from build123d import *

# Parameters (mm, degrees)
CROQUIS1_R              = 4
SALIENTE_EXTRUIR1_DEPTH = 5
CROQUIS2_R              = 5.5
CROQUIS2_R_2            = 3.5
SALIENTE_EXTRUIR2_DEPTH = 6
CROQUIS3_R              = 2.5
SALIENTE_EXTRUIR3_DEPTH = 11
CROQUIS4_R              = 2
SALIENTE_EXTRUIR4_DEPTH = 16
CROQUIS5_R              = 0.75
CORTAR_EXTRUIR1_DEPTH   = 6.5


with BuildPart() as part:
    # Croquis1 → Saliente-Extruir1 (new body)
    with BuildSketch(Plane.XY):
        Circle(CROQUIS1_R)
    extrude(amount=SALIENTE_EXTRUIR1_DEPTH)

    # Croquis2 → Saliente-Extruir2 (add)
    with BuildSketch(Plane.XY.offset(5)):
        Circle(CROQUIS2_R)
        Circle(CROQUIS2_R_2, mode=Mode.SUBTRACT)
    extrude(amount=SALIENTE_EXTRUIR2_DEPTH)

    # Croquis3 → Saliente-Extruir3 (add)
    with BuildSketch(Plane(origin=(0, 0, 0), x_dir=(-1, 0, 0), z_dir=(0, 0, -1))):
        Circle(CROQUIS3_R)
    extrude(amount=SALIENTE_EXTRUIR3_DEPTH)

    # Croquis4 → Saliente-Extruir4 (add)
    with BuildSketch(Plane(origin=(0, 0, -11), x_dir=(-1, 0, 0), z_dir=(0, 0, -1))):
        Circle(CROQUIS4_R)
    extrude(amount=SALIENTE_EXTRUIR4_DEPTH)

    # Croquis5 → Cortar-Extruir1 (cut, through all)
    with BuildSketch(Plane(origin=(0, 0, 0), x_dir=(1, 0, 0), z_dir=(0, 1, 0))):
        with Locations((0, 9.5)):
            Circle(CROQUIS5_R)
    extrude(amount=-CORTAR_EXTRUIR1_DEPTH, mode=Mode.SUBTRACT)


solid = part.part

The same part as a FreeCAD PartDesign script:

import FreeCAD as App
import Part
import Sketcher
from FreeCAD import Vector

doc = App.newDocument("Part")
body = doc.addObject("PartDesign::Body", "Body")

# Sketch on XY plane
sketch1 = body.newObject("Sketcher::SketchObject", "Sketch")
sketch1.AttachmentSupport = (doc.getObject("XY_Plane"), [""])
sketch1.MapMode = "FlatFace"
sketch1.addGeometry(Part.Circle(Vector(0, 0, 0), Vector(0, 0, 1), 4), False)
sketch1.addConstraint(Sketcher.Constraint("Coincident", 0, 3, -1, 1))
sketch1.addConstraint(Sketcher.Constraint("Diameter", 0, 8.0))
pad1 = body.newObject("PartDesign::Pad", "Pad")
pad1.Profile = sketch1
pad1.Length = 5

# Sketch on XY plane
sketch2 = body.newObject("Sketcher::SketchObject", "Sketch001")
sketch2.AttachmentSupport = (doc.getObject("XY_Plane"), [""])
sketch2.MapMode = "FlatFace"
sketch2.AttachmentOffset = App.Placement(Vector(0, 0, 5), App.Rotation())
sketch2.addGeometry(Part.Circle(Vector(0, 0, 0), Vector(0, 0, 1), 5.5), False)
sketch2.addGeometry(Part.Circle(Vector(0, 0, 0), Vector(0, 0, 1), 3.5), False)
sketch2.addConstraint(Sketcher.Constraint("Coincident", 0, 3, -1, 1))
sketch2.addConstraint(Sketcher.Constraint("Coincident", 1, 3, -1, 1))
sketch2.addConstraint(Sketcher.Constraint("Diameter", 0, 11.0))
sketch2.addConstraint(Sketcher.Constraint("Diameter", 1, 7.0))
pad2 = body.newObject("PartDesign::Pad", "Pad001")
pad2.Profile = sketch2
pad2.Length = 6

# Sketch on XY plane
sketch3 = body.newObject("Sketcher::SketchObject", "Sketch002")
sketch3.AttachmentSupport = (doc.getObject("XY_Plane"), [""])
sketch3.MapMode = "FlatFace"
sketch3.addGeometry(Part.Circle(Vector(0, 0, 0), Vector(0, 0, 1), 2.5), False)
sketch3.addConstraint(Sketcher.Constraint("Coincident", 0, 3, -1, 1))
sketch3.addConstraint(Sketcher.Constraint("Diameter", 0, 5.0))
pad3 = body.newObject("PartDesign::Pad", "Pad002")
pad3.Profile = sketch3
pad3.Length = 11
pad3.Reversed = True

# Sketch on XY plane
sketch4 = body.newObject("Sketcher::SketchObject", "Sketch003")
sketch4.AttachmentSupport = (doc.getObject("XY_Plane"), [""])
sketch4.MapMode = "FlatFace"
sketch4.AttachmentOffset = App.Placement(Vector(0, 0, -11), App.Rotation())
sketch4.addGeometry(Part.Circle(Vector(0, 0, 0), Vector(0, 0, 1), 2), False)
sketch4.addConstraint(Sketcher.Constraint("Coincident", 0, 3, -1, 1))
sketch4.addConstraint(Sketcher.Constraint("Diameter", 0, 4.0))
pad4 = body.newObject("PartDesign::Pad", "Pad003")
pad4.Profile = sketch4
pad4.Length = 16
pad4.Reversed = True

# Sketch on XZ plane
sketch5 = body.newObject("Sketcher::SketchObject", "Sketch004")
sketch5.AttachmentSupport = (doc.getObject("XZ_Plane"), [""])
sketch5.MapMode = "FlatFace"
sketch5.addGeometry(Part.Circle(Vector(0, -9.5, 0), Vector(0, 0, 1), 0.8), False)
sketch5.addConstraint(Sketcher.Constraint("PointOnObject", 0, 3, -2))
sketch5.addConstraint(Sketcher.Constraint("Diameter", 0, 1.5))
sketch5.addConstraint(Sketcher.Constraint("DistanceY", 0, 3, -1, 1, 9.5))
pocket1 = body.newObject("PartDesign::Pocket", "Pocket")
pocket1.Profile = sketch5
pocket1.Type = "ThroughAll"
pocket1.Reversed = True

doc.recompute()
